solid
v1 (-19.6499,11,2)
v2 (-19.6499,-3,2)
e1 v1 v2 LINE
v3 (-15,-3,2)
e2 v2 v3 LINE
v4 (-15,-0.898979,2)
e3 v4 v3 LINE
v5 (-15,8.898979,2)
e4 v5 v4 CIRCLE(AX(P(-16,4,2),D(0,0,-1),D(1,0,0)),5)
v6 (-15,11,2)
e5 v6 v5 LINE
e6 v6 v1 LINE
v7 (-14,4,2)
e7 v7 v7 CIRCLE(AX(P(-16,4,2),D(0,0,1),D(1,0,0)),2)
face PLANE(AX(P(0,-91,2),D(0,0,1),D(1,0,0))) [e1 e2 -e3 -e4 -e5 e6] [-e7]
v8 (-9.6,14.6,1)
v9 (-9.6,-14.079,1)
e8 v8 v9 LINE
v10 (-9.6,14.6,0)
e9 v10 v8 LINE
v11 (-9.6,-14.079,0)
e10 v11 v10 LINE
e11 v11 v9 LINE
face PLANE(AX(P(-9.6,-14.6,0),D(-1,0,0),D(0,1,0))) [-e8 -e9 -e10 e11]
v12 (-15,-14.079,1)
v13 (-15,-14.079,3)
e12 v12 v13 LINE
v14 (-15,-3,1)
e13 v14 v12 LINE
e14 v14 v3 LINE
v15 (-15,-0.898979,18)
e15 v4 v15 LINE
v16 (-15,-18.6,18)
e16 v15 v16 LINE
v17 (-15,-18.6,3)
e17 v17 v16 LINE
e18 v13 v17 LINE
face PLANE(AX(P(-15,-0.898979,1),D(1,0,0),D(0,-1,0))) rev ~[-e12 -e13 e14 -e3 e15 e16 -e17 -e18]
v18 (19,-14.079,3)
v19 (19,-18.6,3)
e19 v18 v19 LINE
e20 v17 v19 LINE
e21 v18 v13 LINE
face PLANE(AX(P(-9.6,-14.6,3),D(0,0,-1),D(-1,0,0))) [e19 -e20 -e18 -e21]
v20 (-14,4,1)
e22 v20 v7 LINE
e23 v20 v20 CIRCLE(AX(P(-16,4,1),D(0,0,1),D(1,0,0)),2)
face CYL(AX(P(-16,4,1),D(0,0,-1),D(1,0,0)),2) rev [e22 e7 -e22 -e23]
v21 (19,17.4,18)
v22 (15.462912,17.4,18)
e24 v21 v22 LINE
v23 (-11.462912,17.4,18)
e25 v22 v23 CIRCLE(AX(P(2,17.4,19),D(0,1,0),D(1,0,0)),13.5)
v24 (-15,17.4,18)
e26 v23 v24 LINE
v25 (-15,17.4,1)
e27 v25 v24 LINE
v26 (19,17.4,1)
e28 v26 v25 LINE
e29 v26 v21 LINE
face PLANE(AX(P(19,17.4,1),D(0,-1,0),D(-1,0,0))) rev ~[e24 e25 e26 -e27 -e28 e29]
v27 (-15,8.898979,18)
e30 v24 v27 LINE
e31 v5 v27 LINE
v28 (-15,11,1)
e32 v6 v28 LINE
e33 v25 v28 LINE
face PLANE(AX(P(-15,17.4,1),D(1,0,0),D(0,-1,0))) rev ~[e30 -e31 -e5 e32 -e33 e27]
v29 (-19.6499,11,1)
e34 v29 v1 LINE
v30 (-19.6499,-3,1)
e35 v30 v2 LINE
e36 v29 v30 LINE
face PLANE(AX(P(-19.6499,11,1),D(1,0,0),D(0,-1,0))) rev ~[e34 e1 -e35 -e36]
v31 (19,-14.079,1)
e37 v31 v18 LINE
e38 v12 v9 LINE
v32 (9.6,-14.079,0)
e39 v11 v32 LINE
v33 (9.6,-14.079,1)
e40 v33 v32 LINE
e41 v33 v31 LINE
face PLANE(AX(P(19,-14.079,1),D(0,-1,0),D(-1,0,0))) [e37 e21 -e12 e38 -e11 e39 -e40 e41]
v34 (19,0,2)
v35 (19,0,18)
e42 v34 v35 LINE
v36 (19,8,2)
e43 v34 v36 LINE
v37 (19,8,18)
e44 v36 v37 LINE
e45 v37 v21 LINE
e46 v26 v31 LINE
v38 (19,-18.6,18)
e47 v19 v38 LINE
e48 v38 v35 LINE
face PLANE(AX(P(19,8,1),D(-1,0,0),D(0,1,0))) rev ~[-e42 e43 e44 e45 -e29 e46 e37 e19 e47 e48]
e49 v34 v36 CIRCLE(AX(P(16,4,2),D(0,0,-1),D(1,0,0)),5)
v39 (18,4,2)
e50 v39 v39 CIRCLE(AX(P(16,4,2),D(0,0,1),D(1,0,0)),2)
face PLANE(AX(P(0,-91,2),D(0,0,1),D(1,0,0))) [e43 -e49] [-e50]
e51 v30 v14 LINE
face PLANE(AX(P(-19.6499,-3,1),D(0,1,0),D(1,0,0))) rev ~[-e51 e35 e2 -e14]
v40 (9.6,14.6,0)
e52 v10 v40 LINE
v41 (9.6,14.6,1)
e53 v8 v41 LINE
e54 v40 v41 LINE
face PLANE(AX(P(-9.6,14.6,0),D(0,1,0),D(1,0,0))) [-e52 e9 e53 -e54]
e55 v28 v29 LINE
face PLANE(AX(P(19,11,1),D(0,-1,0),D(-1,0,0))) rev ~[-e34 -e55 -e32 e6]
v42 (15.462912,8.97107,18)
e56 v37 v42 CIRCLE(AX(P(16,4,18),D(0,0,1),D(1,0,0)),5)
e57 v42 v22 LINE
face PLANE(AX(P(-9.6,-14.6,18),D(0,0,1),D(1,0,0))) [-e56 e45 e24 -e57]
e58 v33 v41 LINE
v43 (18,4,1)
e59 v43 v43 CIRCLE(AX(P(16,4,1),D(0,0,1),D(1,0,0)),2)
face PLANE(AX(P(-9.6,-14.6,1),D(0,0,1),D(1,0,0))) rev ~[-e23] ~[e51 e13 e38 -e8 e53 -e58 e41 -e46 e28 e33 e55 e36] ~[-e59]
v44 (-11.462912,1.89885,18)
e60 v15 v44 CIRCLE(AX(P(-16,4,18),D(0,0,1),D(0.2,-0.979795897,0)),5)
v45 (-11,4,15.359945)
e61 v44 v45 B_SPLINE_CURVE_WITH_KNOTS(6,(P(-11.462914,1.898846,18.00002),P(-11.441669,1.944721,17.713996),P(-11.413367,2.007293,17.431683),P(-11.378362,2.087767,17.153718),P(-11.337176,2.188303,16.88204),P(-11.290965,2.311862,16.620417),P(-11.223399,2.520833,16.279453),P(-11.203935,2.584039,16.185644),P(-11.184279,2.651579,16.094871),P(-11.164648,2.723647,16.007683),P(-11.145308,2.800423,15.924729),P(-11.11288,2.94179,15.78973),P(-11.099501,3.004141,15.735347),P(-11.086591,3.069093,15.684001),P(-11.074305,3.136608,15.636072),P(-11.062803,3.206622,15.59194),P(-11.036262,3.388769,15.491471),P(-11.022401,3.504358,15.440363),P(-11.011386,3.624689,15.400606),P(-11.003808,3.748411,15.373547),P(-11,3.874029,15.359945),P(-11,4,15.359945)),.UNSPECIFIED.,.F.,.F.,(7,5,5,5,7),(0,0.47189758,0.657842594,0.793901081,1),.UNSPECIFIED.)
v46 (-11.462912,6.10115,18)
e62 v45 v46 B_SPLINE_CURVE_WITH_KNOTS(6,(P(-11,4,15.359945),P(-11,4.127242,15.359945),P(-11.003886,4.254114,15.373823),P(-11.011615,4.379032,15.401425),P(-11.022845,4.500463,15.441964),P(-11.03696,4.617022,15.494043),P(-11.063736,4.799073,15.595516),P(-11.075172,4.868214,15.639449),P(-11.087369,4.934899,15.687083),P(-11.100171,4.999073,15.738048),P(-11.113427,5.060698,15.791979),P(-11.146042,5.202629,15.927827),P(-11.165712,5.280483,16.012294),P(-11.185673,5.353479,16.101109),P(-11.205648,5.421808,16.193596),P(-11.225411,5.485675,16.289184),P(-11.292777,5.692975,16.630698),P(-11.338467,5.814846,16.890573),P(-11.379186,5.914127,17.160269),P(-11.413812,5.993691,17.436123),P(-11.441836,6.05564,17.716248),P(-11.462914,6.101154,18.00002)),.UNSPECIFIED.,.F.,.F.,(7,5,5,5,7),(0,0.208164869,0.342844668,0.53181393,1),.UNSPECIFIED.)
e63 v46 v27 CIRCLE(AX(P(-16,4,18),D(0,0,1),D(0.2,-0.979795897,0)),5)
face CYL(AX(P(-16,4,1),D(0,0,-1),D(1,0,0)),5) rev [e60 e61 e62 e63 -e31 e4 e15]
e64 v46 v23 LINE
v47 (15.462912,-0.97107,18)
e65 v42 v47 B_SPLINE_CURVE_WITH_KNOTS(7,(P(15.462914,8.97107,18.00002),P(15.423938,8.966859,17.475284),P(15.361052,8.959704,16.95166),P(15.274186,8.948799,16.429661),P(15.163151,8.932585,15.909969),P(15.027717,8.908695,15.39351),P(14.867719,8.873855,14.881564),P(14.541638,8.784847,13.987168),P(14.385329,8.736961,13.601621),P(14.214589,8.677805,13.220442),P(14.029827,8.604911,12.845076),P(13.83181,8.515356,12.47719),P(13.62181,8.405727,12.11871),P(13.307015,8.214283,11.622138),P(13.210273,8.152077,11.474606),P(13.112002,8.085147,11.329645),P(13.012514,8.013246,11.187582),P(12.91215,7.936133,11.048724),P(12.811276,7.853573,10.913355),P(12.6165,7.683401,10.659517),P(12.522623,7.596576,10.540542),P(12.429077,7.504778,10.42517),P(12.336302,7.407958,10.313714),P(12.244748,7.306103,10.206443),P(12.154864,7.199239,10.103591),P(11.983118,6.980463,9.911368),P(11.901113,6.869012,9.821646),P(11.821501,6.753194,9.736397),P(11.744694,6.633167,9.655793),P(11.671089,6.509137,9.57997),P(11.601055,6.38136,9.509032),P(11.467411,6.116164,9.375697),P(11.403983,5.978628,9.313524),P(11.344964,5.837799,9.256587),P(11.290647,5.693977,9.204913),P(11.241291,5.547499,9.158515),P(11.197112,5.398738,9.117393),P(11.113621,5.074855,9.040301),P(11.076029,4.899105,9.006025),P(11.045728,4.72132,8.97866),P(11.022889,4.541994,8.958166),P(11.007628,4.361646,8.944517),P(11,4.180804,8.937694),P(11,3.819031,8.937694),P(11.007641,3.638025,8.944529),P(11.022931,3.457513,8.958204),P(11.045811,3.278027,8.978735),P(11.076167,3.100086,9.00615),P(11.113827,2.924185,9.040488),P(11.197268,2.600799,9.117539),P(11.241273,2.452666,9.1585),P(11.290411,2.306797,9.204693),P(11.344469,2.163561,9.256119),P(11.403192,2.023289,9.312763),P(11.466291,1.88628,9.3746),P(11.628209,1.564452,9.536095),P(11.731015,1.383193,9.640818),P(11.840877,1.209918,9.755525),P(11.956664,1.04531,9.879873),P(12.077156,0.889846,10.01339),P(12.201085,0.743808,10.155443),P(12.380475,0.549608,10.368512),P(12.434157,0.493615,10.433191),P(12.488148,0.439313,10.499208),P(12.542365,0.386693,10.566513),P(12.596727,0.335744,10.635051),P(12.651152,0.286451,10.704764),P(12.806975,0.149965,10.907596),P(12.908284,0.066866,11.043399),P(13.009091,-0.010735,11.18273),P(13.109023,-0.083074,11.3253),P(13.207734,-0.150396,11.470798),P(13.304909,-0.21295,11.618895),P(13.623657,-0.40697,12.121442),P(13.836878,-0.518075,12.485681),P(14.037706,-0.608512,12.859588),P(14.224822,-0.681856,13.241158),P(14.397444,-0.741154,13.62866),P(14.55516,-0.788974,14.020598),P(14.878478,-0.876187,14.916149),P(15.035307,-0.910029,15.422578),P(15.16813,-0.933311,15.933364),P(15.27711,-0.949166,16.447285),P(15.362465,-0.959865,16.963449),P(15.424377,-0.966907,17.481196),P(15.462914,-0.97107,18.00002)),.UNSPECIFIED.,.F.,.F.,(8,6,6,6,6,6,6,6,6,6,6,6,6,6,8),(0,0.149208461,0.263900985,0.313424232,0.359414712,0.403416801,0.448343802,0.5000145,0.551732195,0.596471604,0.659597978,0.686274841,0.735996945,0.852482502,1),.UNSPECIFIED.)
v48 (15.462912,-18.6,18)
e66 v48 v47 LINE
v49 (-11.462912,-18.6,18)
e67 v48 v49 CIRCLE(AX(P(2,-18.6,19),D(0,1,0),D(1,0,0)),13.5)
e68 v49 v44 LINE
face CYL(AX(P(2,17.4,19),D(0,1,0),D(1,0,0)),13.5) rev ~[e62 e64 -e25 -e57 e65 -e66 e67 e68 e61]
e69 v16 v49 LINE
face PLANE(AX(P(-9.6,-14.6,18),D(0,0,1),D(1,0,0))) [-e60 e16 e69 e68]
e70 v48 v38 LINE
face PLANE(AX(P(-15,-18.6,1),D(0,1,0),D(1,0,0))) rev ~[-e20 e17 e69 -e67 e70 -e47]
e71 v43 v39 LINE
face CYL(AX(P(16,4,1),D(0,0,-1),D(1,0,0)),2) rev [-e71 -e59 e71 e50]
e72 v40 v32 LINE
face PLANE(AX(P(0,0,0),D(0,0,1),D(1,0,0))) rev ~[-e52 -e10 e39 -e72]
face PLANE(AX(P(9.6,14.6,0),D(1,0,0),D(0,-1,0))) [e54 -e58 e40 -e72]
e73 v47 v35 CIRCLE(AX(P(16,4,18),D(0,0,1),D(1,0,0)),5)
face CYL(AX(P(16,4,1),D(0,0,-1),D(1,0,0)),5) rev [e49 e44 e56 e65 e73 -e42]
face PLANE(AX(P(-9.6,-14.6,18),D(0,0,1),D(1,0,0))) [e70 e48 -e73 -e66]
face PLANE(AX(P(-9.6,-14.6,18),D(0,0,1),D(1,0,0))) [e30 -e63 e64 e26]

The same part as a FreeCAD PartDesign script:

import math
import FreeCAD as App
import Part
import Sketcher
from FreeCAD import Vector
Q = App.Units.Quantity

doc = App.newDocument("Part")
body = doc.addObject("PartDesign::Body", "Body")

# Sketch on XY plane
sketch1 = doc.addObject("Sketcher::SketchObject", "Sketch")
body.addObject(sketch1)
sketch1.AttachmentSupport = (doc.XY_Plane, [""])
sketch1.MapMode = "FlatFace"
sketch1.addGeometry([
    Part.LineSegment(Vector(-9.6, -14.6, 0), Vector(9.6, -14.6, 0)),
    Part.LineSegment(Vector(9.6, -14.6, 0), Vector(9.6, 14.6, 0)),
    Part.LineSegment(Vector(9.6, 14.6, 0), Vector(-9.6, 14.6, 0)),
    Part.LineSegment(Vector(-9.6, 14.6, 0), Vector(-9.6, -14.6, 0)),
], False)
sketch1.addConstraint([
    Sketcher.Constraint("Coincident", 0, 2, 1, 1),
    Sketcher.Constraint("Coincident", 1, 2, 2, 1),
    Sketcher.Constraint("Coincident", 2, 2, 3, 1),
    Sketcher.Constraint("Coincident", 3, 2, 0, 1),
    Sketcher.Constraint("Horizontal", 0),
    Sketcher.Constraint("Vertical", 1),
    Sketcher.Constraint("Horizontal", 2),
    Sketcher.Constraint("Vertical", 3),
    Sketcher.Constraint("Symmetric", 0, 2, 2, 2, -1, 1),
    Sketcher.Constraint("DistanceX", 0, 1, 0, 2, Q("19.2 mm")),
    Sketcher.Constraint("DistanceY", 1, 1, 1, 2, Q("29.2 mm")),
])
pad1 = doc.addObject("PartDesign::Pad", "Pad")
body.addObject(pad1)
pad1.Profile = sketch1
pad1.Length = 1

# Sketch on XY plane
sketch2 = doc.addObject("Sketcher::SketchObject", "Sketch001")
body.addObject(sketch2)
sketch2.AttachmentSupport = (doc.XY_Plane, [""])
sketch2.MapMode = "FlatFace"
sketch2.AttachmentOffset = App.Placement(Vector(0, 0, 1), App.Rotation())
sketch2.addGeometry([
    Part.LineSegment(Vector(-15, 17.4, 0), Vector(-15, 8.898979, 0)),  # 0
    Part.ArcOfCircle(Part.Circle(Vector(-16, 4, 0), Vector(0, 0, 1), 5), math.radians(-78.463041), math.radians(78.463041)),  # 1
    Part.LineSegment(Vector(-15, -0.898979, 0), Vector(-15, -18.6, 0)),  # 2
    Part.LineSegment(Vector(-15, -18.6, 0), Vector(19, -18.6, 0)),  # 3
    Part.LineSegment(Vector(19, -18.6, 0), Vector(19, 0, 0)),  # 4
    Part.ArcOfCircle(Part.Circle(Vector(16, 4, 0), Vector(0, 0, 1), 5), math.radians(53.130102), math.radians(306.869898)),  # 5
    Part.LineSegment(Vector(19, 8, 0), Vector(19, 17.4, 0)),  # 6
    Part.LineSegment(Vector(19, 17.4, 0), Vector(-15, 17.4, 0)),  # 7
], False)
sketch2.addConstraint([
    Sketcher.Constraint("Coincident", 0, 2, 1, 2),
    Sketcher.Constraint("Coincident", 1, 1, 2, 1),
    Sketcher.Constraint("Coincident", 2, 2, 3, 1),
    Sketcher.Constraint("Coincident", 3, 2, 4, 1),
    Sketcher.Constraint("Coincident", 4, 2, 5, 2),
    Sketcher.Constraint("Coincident", 5, 1, 6, 1),
    Sketcher.Constraint("Coincident", 6, 2, 7, 1),
    Sketcher.Constraint("Coincident", 7, 2, 0, 1),
    Sketcher.Constraint("Vertical", 0),
    Sketcher.Constraint("Vertical", 2),
    Sketcher.Constraint("Horizontal", 3),
    Sketcher.Constraint("Vertical", 4),
    Sketcher.Constraint("Vertical", 6),
    Sketcher.Constraint("Horizontal", 7),
    Sketcher.Constraint("Equal", 1, 5),
    Sketcher.Constraint("Symmetric", 1, 3, 5, 3, -2),
    Sketcher.Constraint("PointOnObject", 4, 2, -1),
    Sketcher.Constraint("Vertical", 0, 2, 1, 1),
    Sketcher.Constraint("Vertical", 4, 2, 5, 1),
    Sketcher.Constraint("Radius", 1, Q("5 mm")),
    Sketcher.Constraint("DistanceX", 3, 1, 3, 2, Q("34 mm")),
    Sketcher.Constraint("DistanceY", -1, 1, 1, 3, Q("4 mm")),
    Sketcher.Constraint("DistanceY", 3, 2, 6, 2, Q("36 mm")),
    Sketcher.Constraint("DistanceY", 4, 1, 4, 2, Q("18.6 mm")),
    Sketcher.Constraint("DistanceX", 1, 3, -1, 1, Q("16 mm")),
])
pad2 = doc.addObject("PartDesign::Pad", "Pad001")
body.addObject(pad2)
pad2.Profile = sketch2
pad2.Length = 17

# Sketch on XZ plane
sketch3 = doc.addObject("Sketcher::SketchObject", "Sketch002")
body.addObject(sketch3)
sketch3.AttachmentSupport = (doc.XZ_Plane, [""])
sketch3.MapMode = "FlatFace"
sketch3.AttachmentOffset = App.Placement(Vector(0, 0, -17.4), App.Rotation())
sketch3.addGeometry(Part.Circle(Vector(2, 19, 0), Vector(0, 0, 1), 13.5), False)
sketch3.addConstraint([
    Sketcher.Constraint("Diameter", 0, Q("27 mm")),
    Sketcher.Constraint("DistanceX", -1, 1, 0, 3, Q("2 mm")),
    Sketcher.Constraint("DistanceY", -1, 1, 0, 3, Q("19 mm")),
])
pocket1 = doc.addObject("PartDesign::Pocket", "Pocket")
body.addObject(pocket1)
pocket1.Profile = sketch3
pocket1.Length = 36
pocket1.Reversed = True

# Sketch on XY plane
sketch4 = doc.addObject("Sketcher::SketchObject", "Sketch003")
body.addObject(sketch4)
sketch4.AttachmentSupport = (doc.XY_Plane, [""])
sketch4.MapMode = "FlatFace"
sketch4.AttachmentOffset = App.Placement(Vector(0, 0, 1), App.Rotation())
sketch4.addGeometry([
    Part.LineSegment(Vector(19, -3, 0), Vector(19, 11, 0)),  # 0
    Part.LineSegment(Vector(19, 11, 0), Vector(-19.6499, 11, 0)),  # 1
    Part.LineSegment(Vector(-19.6499, 11, 0), Vector(-19.6499, -3, 0)),  # 2
    Part.LineSegment(Vector(-19.6499, -3, 0), Vector(19, -3, 0)),  # 3
    Part.Circle(Vector(-16, 4, 0), Vector(0, 0, 1), 2),  # 4
    Part.Circle(Vector(16, 4, 0), Vector(0, 0, 1), 2),  # 5
], False)
sketch4.addConstraint([
    Sketcher.Constraint("Coincident", 0, 2, 1, 1),
    Sketcher.Constraint("Coincident", 1, 2, 2, 1),
    Sketcher.Constraint("Coincident", 2, 2, 3, 1),
    Sketcher.Constraint("Coincident", 3, 2, 0, 1),
    Sketcher.Constraint("Vertical", 0),
    Sketcher.Constraint("Horizontal", 1),
    Sketcher.Constraint("Vertical", 2),
    Sketcher.Constraint("Horizontal", 3),
    Sketcher.Constraint("Equal", 4, 5),
    Sketcher.Constraint("Symmetric", 4, 3, 5, 3, -2),
    Sketcher.Constraint("DistanceY", 0, 1, 0, 2, Q("14 mm")),
    Sketcher.Constraint("Diameter", 4, Q("4 mm")),
    Sketcher.Constraint("DistanceY", 5, 3, 0, 2, Q("7 mm")),
    Sketcher.Constraint("DistanceX", 1, 2, 4, 3, Q("3.65 mm")),
    Sketcher.Constraint("DistanceX", 4, 3, -1, 1, Q("16 mm")),
    Sketcher.Constraint("DistanceY", -1, 1, 4, 3, Q("4 mm")),
    Sketcher.Constraint("DistanceX", -1, 1, 0, 2, Q("19 mm")),
])
pad3 = doc.addObject("PartDesign::Pad", "Pad002")
body.addObject(pad3)
pad3.Profile = sketch4
pad3.Length = 1

# Sketch on XY plane
sketch5 = doc.addObject("Sketcher::SketchObject", "Sketch004")
body.addObject(sketch5)
sketch5.AttachmentSupport = (doc.XY_Plane, [""])
sketch5.MapMode = "FlatFace"
sketch5.AttachmentOffset = App.Placement(Vector(0, 0, 1), App.Rotation())
sketch5.addGeometry([
    Part.LineSegment(Vector(19, -14.079, 0), Vector(19, -18.6, 0)),
    Part.LineSegment(Vector(19, -18.6, 0), Vector(-15, -18.6, 0)),
    Part.LineSegment(Vector(-15, -18.6, 0), Vector(-15, -14.079, 0)),
    Part.LineSegment(Vector(-15, -14.079, 0), Vector(19, -14.079, 0)),
], False)
sketch5.addConstraint([
    Sketcher.Constraint("Coincident", 0, 2, 1, 1),
    Sketcher.Constraint("Coincident", 1, 2, 2, 1),
    Sketcher.Constraint("Coincident", 2, 2, 3, 1),
    Sketcher.Constraint("Coincident", 3, 2, 0, 1),
    Sketcher.Constraint("Vertical", 0),
    Sketcher.Constraint("Horizontal", 1),
    Sketcher.Constraint("Vertical", 2),
    Sketcher.Constraint("Horizontal", 3),
    Sketcher.Constraint("DistanceX", 1, 2, 1, 1, Q("34 mm")),
    Sketcher.Constraint("DistanceX", -1, 1, 0, 2, Q("19 mm")),
    Sketcher.Constraint("DistanceY", 0, 2, -1, 1, Q("18.6 mm")),
    Sketcher.Constraint("DistanceY", 0, 2, 0, 1, Q("4.521 mm")),
])
pocket2 = doc.addObject("PartDesign::Pocket", "Pocket001")
body.addObject(pocket2)
pocket2.Profile = sketch5
pocket2.Length = 4
pocket2.Midplane = True

doc.recompute()
